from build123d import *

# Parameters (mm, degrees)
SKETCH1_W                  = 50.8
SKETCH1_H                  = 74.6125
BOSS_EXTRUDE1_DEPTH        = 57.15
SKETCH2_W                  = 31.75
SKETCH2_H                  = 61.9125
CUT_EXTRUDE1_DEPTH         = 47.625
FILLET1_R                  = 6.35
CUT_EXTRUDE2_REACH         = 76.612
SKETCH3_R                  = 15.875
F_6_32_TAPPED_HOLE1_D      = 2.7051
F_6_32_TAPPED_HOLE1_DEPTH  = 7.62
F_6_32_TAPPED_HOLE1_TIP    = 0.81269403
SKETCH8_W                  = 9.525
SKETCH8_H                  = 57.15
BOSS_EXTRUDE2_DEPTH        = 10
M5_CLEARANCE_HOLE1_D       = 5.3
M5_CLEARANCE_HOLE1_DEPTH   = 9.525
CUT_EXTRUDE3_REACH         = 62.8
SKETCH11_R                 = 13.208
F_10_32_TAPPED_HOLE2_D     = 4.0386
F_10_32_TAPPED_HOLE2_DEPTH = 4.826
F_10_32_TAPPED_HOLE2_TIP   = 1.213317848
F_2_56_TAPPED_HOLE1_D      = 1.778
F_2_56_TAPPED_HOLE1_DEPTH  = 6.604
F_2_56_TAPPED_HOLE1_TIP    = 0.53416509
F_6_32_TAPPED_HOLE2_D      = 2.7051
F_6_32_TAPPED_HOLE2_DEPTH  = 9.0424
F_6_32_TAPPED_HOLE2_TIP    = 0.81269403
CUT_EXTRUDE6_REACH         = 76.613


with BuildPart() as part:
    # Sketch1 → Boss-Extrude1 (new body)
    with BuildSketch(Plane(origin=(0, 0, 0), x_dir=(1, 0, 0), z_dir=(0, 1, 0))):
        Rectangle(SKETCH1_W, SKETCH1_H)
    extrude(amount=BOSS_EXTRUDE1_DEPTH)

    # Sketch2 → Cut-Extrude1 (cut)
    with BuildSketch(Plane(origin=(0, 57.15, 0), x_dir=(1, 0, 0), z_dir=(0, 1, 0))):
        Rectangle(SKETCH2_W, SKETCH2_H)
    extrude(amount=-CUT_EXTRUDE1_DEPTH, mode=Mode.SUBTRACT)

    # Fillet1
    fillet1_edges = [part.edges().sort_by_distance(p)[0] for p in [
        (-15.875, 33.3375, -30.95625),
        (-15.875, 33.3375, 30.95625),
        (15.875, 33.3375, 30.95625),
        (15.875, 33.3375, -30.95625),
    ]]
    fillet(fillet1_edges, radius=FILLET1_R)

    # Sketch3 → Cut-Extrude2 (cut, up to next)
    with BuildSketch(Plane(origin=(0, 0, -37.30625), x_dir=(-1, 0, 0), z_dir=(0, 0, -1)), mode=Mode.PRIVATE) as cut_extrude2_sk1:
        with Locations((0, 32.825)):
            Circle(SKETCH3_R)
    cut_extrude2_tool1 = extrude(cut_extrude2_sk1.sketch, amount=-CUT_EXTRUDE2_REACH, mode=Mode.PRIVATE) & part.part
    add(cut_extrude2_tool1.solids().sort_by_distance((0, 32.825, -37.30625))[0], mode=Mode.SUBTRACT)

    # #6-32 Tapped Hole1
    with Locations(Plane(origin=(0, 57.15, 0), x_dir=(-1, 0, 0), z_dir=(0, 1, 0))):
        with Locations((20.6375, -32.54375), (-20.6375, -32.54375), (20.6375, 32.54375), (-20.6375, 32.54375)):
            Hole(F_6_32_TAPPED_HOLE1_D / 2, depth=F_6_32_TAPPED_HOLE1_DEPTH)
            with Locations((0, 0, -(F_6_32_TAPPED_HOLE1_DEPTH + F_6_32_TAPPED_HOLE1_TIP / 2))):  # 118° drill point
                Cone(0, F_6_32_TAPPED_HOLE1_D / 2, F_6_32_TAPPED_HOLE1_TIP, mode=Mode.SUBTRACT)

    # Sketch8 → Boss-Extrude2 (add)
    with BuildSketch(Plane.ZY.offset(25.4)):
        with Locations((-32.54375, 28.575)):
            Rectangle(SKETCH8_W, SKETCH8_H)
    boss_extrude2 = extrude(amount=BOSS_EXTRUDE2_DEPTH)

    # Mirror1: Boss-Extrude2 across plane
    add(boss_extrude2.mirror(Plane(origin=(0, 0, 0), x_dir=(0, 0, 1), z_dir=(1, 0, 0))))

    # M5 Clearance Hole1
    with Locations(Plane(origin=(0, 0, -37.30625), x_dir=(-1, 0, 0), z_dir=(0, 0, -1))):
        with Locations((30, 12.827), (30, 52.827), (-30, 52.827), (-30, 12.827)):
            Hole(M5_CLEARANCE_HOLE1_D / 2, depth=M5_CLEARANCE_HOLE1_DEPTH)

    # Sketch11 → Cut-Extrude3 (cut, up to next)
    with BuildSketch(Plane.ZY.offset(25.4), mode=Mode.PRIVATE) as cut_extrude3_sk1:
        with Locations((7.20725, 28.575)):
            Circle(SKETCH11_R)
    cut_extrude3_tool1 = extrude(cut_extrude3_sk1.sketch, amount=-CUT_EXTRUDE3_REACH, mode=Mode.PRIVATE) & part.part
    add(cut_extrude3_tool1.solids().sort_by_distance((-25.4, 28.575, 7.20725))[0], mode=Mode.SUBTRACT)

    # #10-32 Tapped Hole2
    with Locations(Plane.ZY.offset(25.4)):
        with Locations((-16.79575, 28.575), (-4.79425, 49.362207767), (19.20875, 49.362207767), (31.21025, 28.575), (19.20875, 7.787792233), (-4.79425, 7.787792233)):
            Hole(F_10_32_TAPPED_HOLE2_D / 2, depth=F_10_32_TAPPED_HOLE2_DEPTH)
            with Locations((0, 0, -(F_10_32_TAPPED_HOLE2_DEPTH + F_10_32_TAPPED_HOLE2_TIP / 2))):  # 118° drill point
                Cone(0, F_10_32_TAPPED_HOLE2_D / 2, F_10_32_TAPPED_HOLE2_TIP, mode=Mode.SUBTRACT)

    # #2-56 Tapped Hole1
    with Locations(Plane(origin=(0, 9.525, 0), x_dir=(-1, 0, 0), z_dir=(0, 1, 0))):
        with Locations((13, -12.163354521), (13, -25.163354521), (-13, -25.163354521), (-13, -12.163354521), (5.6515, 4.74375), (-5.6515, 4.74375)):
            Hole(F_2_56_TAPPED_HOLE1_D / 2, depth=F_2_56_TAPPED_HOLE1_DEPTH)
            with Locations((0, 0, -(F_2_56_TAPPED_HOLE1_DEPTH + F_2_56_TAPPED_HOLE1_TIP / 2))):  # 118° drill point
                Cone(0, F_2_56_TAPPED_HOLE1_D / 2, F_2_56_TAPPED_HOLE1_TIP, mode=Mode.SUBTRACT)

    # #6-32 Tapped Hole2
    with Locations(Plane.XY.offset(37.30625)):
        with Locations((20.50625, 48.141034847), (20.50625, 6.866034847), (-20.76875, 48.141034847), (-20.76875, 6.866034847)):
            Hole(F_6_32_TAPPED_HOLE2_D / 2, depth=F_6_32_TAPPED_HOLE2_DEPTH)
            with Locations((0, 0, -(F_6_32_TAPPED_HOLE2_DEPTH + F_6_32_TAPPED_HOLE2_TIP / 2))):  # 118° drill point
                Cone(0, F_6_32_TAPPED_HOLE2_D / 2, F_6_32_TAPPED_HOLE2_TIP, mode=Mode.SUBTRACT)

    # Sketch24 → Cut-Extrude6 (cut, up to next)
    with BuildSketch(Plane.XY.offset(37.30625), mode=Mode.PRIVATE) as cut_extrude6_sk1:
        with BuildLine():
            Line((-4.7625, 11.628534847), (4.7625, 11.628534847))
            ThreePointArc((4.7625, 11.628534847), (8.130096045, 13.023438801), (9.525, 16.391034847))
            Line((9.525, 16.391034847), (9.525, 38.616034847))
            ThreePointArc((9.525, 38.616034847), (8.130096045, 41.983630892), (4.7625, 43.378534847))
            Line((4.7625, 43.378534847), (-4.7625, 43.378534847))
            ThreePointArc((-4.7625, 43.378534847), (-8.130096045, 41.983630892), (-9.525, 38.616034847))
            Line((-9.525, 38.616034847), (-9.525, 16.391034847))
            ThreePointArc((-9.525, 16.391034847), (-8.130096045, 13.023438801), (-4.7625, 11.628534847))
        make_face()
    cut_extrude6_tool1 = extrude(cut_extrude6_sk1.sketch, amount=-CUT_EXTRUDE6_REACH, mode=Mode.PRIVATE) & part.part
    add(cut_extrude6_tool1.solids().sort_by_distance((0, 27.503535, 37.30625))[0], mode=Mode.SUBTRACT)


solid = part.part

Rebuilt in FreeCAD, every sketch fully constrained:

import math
import FreeCAD as App
import Part
import Sketcher
Q = App.Units.Quantity


def edges_at(feature, points):
    """Names of the edges that pass closest to the given points."""
    edges = feature.Shape.Edges
    near = lambda p: min(range(len(edges)), key=lambda i: edges[i].distToShape(Part.Vertex(*p))[0])
    return sorted({f"Edge{near(p) + 1}" for p in points})


def add_polygon(sketch, points):
    """Adds a closed chain of lines whose ends are joined by coincident constraints."""
    first, n = sketch.GeometryCount, len(points)
    for a, b in zip(points, points[1:] + points[:1]):
        sketch.addGeometry(Part.LineSegment(App.Vector(*a, 0), App.Vector(*b, 0)), False)
    for i in range(n):
        sketch.addConstraint(Sketcher.Constraint("Coincident", first + i, 2, first + (i + 1) % n, 1))

doc = App.newDocument("Part")
body = doc.addObject("PartDesign::Body", "Body")

sketch1 = doc.addObject("Sketcher::SketchObject", "Sketch")
body.addObject(sketch1)
sketch1.AttachmentSupport = (doc.XZ_Plane, [""])
sketch1.MapMode = "FlatFace"
add_polygon(sketch1, [(-25.4, -37.30625), (-25.4, 37.30625), (25.4, 37.30625), (25.4, -37.30625)])
sketch1.addConstraint([
    Sketcher.Constraint("Vertical", 0),
    Sketcher.Constraint("Horizontal", 1),
    Sketcher.Constraint("Vertical", 2),
    Sketcher.Constraint("Horizontal", 3),
    Sketcher.Constraint("Symmetric", 0, 2, 2, 2, -1, 1),
    Sketcher.Constraint("DistanceX", 1, 1, 1, 2, Q("2 in")),
    Sketcher.Constraint("DistanceY", 0, 1, 0, 2, Q("2.9375 in")),
])
pad1 = doc.addObject("PartDesign::Pad", "Pad")
body.addObject(pad1)
pad1.Profile = sketch1
pad1.Length = Q("2.25 in")
pad1.Reversed = True

sketch2 = doc.addObject("Sketcher::SketchObject", "Sketch001")
body.addObject(sketch2)
sketch2.AttachmentSupport = (doc.XZ_Plane, [""])
sketch2.MapMode = "FlatFace"
sketch2.AttachmentOffset = App.Placement(App.Vector(0, 0, -2.25 * 25.4), App.Rotation())
add_polygon(sketch2, [(-15.875, -30.95625), (-15.875, 30.95625), (15.875, 30.95625), (15.875, -30.95625)])
sketch2.addConstraint([
    Sketcher.Constraint("Vertical", 0),
    Sketcher.Constraint("Horizontal", 1),
    Sketcher.Constraint("Vertical", 2),
    Sketcher.Constraint("Horizontal", 3),
    Sketcher.Constraint("Symmetric", 0, 2, 2, 2, -1, 1),
    Sketcher.Constraint("DistanceX", 1, 1, 1, 2, Q("1.25 in")),
    Sketcher.Constraint("DistanceY", 0, 1, 0, 2, Q("2.4375 in")),
])
pocket1 = doc.addObject("PartDesign::Pocket", "Pocket")
body.addObject(pocket1)
pocket1.Profile = sketch2
pocket1.Length = Q("1.875 in")
pocket1.Reversed = True
doc.recompute()

fillet = doc.addObject("PartDesign::Fillet", "Fillet")
body.addObject(fillet)
fillet.Base = (pocket1, edges_at(pocket1, [
    (-15.875, 33.337, -30.956),
    (-15.875, 33.337, 30.956),
    (15.875, 33.337, 30.956),
    (15.875, 33.337, -30.956),
]))
fillet.Radius = Q("0.25 in")

sketch3 = doc.addObject("Sketcher::SketchObject", "Sketch002")
body.addObject(sketch3)
sketch3.AttachmentSupport = (doc.XY_Plane, [""])
sketch3.MapMode = "FlatFace"
sketch3.AttachmentOffset = App.Placement(App.Vector(0, 0, -1.46875 * 25.4), App.Rotation())
sketch3.addGeometry(Part.Circle(App.Vector(0, 32.825, 0), App.Vector(0, 0, 1), 15.875), False)
sketch3.addConstraint([
    Sketcher.Constraint("PointOnObject", 0, 3, -2),
    Sketcher.Constraint("Diameter", 0, Q("1.25 in")),
    Sketcher.Constraint("DistanceY", -1, 1, 0, 3, Q("32.825 mm")),
])
pocket2 = doc.addObject("PartDesign::Pocket", "Pocket001")
body.addObject(pocket2)
pocket2.Profile = sketch3
pocket2.Length = Q("0.5 in")
pocket2.Reversed = True

sketch4 = doc.addObject("Sketcher::SketchObject", "Sketch003")
body.addObject(sketch4)
sketch4.AttachmentSupport = (doc.XZ_Plane, [""])
sketch4.MapMode = "FlatFace"
sketch4.AttachmentOffset = App.Placement(App.Vector(0, 0, -2.25 * 25.4), App.Rotation())
sketch4.addGeometry([
    Part.Circle(App.Vector(-20.6375, -32.54375, 0), App.Vector(0, 0, 1), 1.35255),
    Part.Circle(App.Vector(20.6375, -32.54375, 0), App.Vector(0, 0, 1), 1.35255),
    Part.Circle(App.Vector(-20.6375, 32.54375, 0), App.Vector(0, 0, 1), 1.35255),
    Part.Circle(App.Vector(20.6375, 32.54375, 0), App.Vector(0, 0, 1), 1.35255),
], False)
sketch4.addConstraint([
    Sketcher.Constraint("Equal", 0, 1),
    Sketcher.Constraint("Equal", 1, 2),
    Sketcher.Constraint("Equal", 2, 3),
    Sketcher.Constraint("Symmetric", 1, 3, 2, 3, -1, 1),
    Sketcher.Constraint("Symmetric", 0, 3, 3, 3, -1, 1),
    Sketcher.Constraint("Symmetric", 0, 3, 1, 3, -2),
    Sketcher.Constraint("Diameter", 0, Q("0.1065 in")),
    Sketcher.Constraint("DistanceX", 0, 3, -1, 1, Q("0.8125 in")),
    Sketcher.Constraint("DistanceY", 0, 3, -1, 1, Q("1.28125 in")),
])
doc.recompute()
hole = doc.addObject("PartDesign::Hole", "Hole")
body.addObject(hole)
hole.Profile = sketch4
hole.ThreadType = "None"
hole.Diameter = Q("0.1065 in")
hole.DepthType = "Dimension"
hole.Depth = Q("0.3 in")
hole.DrillPoint = "Angled"
hole.DrillPointAngle = 118
hole.Reversed = True

sketch5 = doc.addObject("Sketcher::SketchObject", "Sketch004")
body.addObject(sketch5)
sketch5.AttachmentSupport = (doc.YZ_Plane, [""])
sketch5.MapMode = "FlatFace"
sketch5.AttachmentOffset = App.Placement(App.Vector(0, 0, -1 * 25.4), App.Rotation())
add_polygon(sketch5, [(57.15, -37.30625), (0, -37.30625), (0, -27.78125), (57.15, -27.78125)])
sketch5.addConstraint([
    Sketcher.Constraint("Horizontal", 0),
    Sketcher.Constraint("Vertical", 1),
    Sketcher.Constraint("Horizontal", 2),
    Sketcher.Constraint("Vertical", 3),
    Sketcher.Constraint("PointOnObject", 0, 2, -2),
    Sketcher.Constraint("DistanceX", 0, 2, 0, 1, Q("2.25 in")),
    Sketcher.Constraint("DistanceY", 1, 1, 1, 2, Q("0.375 in")),
    Sketcher.Constraint("DistanceY", 0, 2, -1, 1, Q("1.46875 in")),
])
pad2 = doc.addObject("PartDesign::Pad", "Pad001")
body.addObject(pad2)
pad2.Profile = sketch5
pad2.Length = 10
pad2.Reversed = True
doc.recompute()

mirrored = doc.addObject("PartDesign::Mirrored", "Mirrored")
body.addObject(mirrored)
mirrored.Originals = [pad2]
mirrored.MirrorPlane = (doc.YZ_Plane, [""])
body.Tip = mirrored

sketch6 = doc.addObject("Sketcher::SketchObject", "Sketch005")
body.addObject(sketch6)
sketch6.AttachmentSupport = (doc.XY_Plane, [""])
sketch6.MapMode = "FlatFace"
sketch6.AttachmentOffset = App.Placement(App.Vector(0, 0, -1.46875 * 25.4), App.Rotation())
sketch6.addGeometry([
    Part.Circle(App.Vector(-30, 12.827, 0), App.Vector(0, 0, 1), 2.65),
    Part.Circle(App.Vector(-30, 52.827, 0), App.Vector(0, 0, 1), 2.65),
    Part.Circle(App.Vector(30, 52.827, 0), App.Vector(0, 0, 1), 2.65),
    Part.Circle(App.Vector(30, 12.827, 0), App.Vector(0, 0, 1), 2.65),
], False)
sketch6.addConstraint([
    Sketcher.Constraint("Equal", 0, 1),
    Sketcher.Constraint("Equal", 1, 2),
    Sketcher.Constraint("Equal", 2, 3),
    Sketcher.Constraint("Symmetric", 1, 3, 2, 3, -2),
    Sketcher.Constraint("Symmetric", 0, 3, 3, 3, -2),
    Sketcher.Constraint("Vertical", 0, 3, 1, 3),
    Sketcher.Constraint("Diameter", 0, Q("5.3 mm")),
    Sketcher.Constraint("DistanceY", -1, 1, 0, 3, Q("0.505 in")),
    Sketcher.Constraint("DistanceX", 0, 3, -1, 1, Q("30 mm")),
    Sketcher.Constraint("DistanceY", -1, 1, 1, 3, Q("52.827 mm")),
])
doc.recompute()
hole2 = doc.addObject("PartDesign::Hole", "Hole001")
body.addObject(hole2)
hole2.Profile = sketch6
hole2.ThreadType = "None"
hole2.Diameter = 5.3
hole2.DepthType = "Dimension"
hole2.Depth = Q("0.375 in")
hole2.DrillPoint = "Flat"
hole2.Reversed = True

sketch7 = doc.addObject("Sketcher::SketchObject", "Sketch006")
body.addObject(sketch7)
sketch7.AttachmentSupport = (doc.YZ_Plane, [""])
sketch7.MapMode = "FlatFace"
sketch7.AttachmentOffset = App.Placement(App.Vector(0, 0, -1 * 25.4), App.Rotation())
sketch7.addGeometry(Part.Circle(App.Vector(28.575, 7.20725, 0), App.Vector(0, 0, 1), 13.208), False)
sketch7.addConstraint([
    Sketcher.Constraint("Diameter", 0, Q("1.04 in")),
    Sketcher.Constraint("DistanceX", -1, 1, 0, 3, Q("1.125 in")),
    Sketcher.Constraint("DistanceY", -1, 1, 0, 3, Q("7.20725 mm")),
])
pocket3 = doc.addObject("PartDesign::Pocket", "Pocket002")
body.addObject(pocket3)
pocket3.Profile = sketch7
pocket3.Type = "UpToFirst"
pocket3.Reversed = True

sketch8 = doc.addObject("Sketcher::SketchObject", "Sketch007")
body.addObject(sketch8)
sketch8.AttachmentSupport = (doc.YZ_Plane, [""])
sketch8.MapMode = "FlatFace"
sketch8.AttachmentOffset = App.Placement(App.Vector(0, 0, -1 * 25.4), App.Rotation())
sketch8.addGeometry([
    Part.Circle(App.Vector(28.575, -16.79575, 0), App.Vector(0, 0, 1), 2.0193),
    Part.Circle(App.Vector(49.362208, -4.79425, 0), App.Vector(0, 0, 1), 2.0193),
    Part.Circle(App.Vector(49.362208, 19.20875, 0), App.Vector(0, 0, 1), 2.0193),
    Part.Circle(App.Vector(28.575, 31.21025, 0), App.Vector(0, 0, 1), 2.0193),
    Part.Circle(App.Vector(7.787792, 19.20875, 0), App.Vector(0, 0, 1), 2.0193),
    Part.Circle(App.Vector(7.787792, -4.79425, 0), App.Vector(0, 0, 1), 2.0193),
], False)
sketch8.addConstraint([
    Sketcher.Constraint("Equal", 0, 1),
    Sketcher.Constraint("Equal", 1, 2),
    Sketcher.Constraint("Equal", 2, 3),
    Sketcher.Constraint("Equal", 3, 4),
    Sketcher.Constraint("Equal", 4, 5),
    Sketcher.Constraint("Horizontal", 2, 3, 4, 3),
    Sketcher.Constraint("Horizontal", 1, 3, 5, 3),
    Sketcher.Constraint("Vertical", 1, 3, 2, 3),
    Sketcher.Constraint("Vertical", 0, 3, 3, 3),
    Sketcher.Constraint("Vertical", 4, 3, 5, 3),
    Sketcher.Constraint("Diameter", 0, Q("0.159 in")),
    Sketcher.Constraint("DistanceY", 0, 3, 3, 3, Q("1.89 in")),
    Sketcher.Constraint("DistanceX", -1, 1, 0, 3, Q("1.125 in")),
    Sketcher.Constraint("DistanceY", 1, 3, 2, 3, Q("0.945 in")),
    Sketcher.Constraint("DistanceY", 0, 3, 1, 3, Q("0.4725 in")),
    Sketcher.Constraint("DistanceY", 0, 3, -1, 1, Q("16.79575 mm")),
    Sketcher.Constraint("DistanceX", -1, 1, 1, 3, Q("49.362208 mm")),
    Sketcher.Constraint("DistanceX", -1, 1, 4, 3, Q("7.787792 mm")),
])
doc.recompute()
hole3 = doc.addObject("PartDesign::Hole", "Hole002")
body.addObject(hole3)
hole3.Profile = sketch8
hole3.ThreadType = "None"
hole3.Diameter = Q("0.159 in")
hole3.DepthType = "Dimension"
hole3.Depth = Q("0.19 in")
hole3.DrillPoint = "Angled"
hole3.DrillPointAngle = 118
hole3.Reversed = True

sketch9 = doc.addObject("Sketcher::SketchObject", "Sketch008")
body.addObject(sketch9)
sketch9.AttachmentSupport = (doc.XZ_Plane, [""])
sketch9.MapMode = "FlatFace"
sketch9.AttachmentOffset = App.Placement(App.Vector(0, 0, -0.375 * 25.4), App.Rotation())
sketch9.addGeometry([
    Part.Circle(App.Vector(-13, -12.163355, 0), App.Vector(0, 0, 1), 0.889),
    Part.Circle(App.Vector(-13, -25.163355, 0), App.Vector(0, 0, 1), 0.889),
    Part.Circle(App.Vector(13, -25.163355, 0), App.Vector(0, 0, 1), 0.889),
    Part.Circle(App.Vector(13, -12.163355, 0), App.Vector(0, 0, 1), 0.889),
    Part.Circle(App.Vector(-5.6515, 4.74375, 0), App.Vector(0, 0, 1), 0.889),
    Part.Circle(App.Vector(5.6515, 4.74375, 0), App.Vector(0, 0, 1), 0.889),
], False)
sketch9.addConstraint([
    Sketcher.Constraint("Equal", 0, 1),
    Sketcher.Constraint("Equal", 1, 2),
    Sketcher.Constraint("Equal", 2, 3),
    Sketcher.Constraint("Equal", 3, 4),
    Sketcher.Constraint("Equal", 4, 5),
    Sketcher.Constraint("Symmetric", 1, 3, 2, 3, -2),
    Sketcher.Constraint("Symmetric", 0, 3, 3, 3, -2),
    Sketcher.Constraint("Symmetric", 4, 3, 5, 3, -2),
    Sketcher.Constraint("Vertical", 0, 3, 1, 3),
    Sketcher.Constraint("Diameter", 0, Q("0.07 in")),
    Sketcher.Constraint("DistanceX", 4, 3, 5, 3, Q("0.445 in")),
    Sketcher.Constraint("DistanceX", 0, 3, -1, 1, Q("13 mm")),
    Sketcher.Constraint("DistanceY", 1, 3, 0, 3, Q("13 mm")),
    Sketcher.Constraint("DistanceY", -1, 1, 4, 3, Q("4.74375 mm")),
    Sketcher.Constraint("DistanceY", 0, 3, -1, 1, Q("12.163355 mm")),
])
doc.recompute()
hole4 = doc.addObject("PartDesign::Hole", "Hole003")
body.addObject(hole4)
hole4.Profile = sketch9
hole4.ThreadType = "None"
hole4.Diameter = Q("0.07 in")
hole4.DepthType = "Dimension"
hole4.Depth = Q("0.26 in")
hole4.DrillPoint = "Angled"
hole4.DrillPointAngle = 118
hole4.Reversed = True

sketch10 = doc.addObject("Sketcher::SketchObject", "Sketch009")
body.addObject(sketch10)
sketch10.AttachmentSupport = (doc.XY_Plane, [""])
sketch10.MapMode = "FlatFace"
sketch10.AttachmentOffset = App.Placement(App.Vector(0, 0, 1.46875 * 25.4), App.Rotation())
sketch10.addGeometry([
    Part.Circle(App.Vector(20.50625, 48.141035, 0), App.Vector(0, 0, 1), 1.35255),
    Part.Circle(App.Vector(20.50625, 6.866035, 0), App.Vector(0, 0, 1), 1.35255),
    Part.Circle(App.Vector(-20.76875, 48.141035, 0), App.Vector(0, 0, 1), 1.35255),
    Part.Circle(App.Vector(-20.76875, 6.866035, 0), App.Vector(0, 0, 1), 1.35255),
], False)
sketch10.addConstraint([
    Sketcher.Constraint("Equal", 0, 1),
    Sketcher.Constraint("Equal", 1, 2),
    Sketcher.Constraint("Equal", 2, 3),
    Sketcher.Constraint("Horizontal", 0, 3, 2, 3),
    Sketcher.Constraint("Horizontal", 1, 3, 3, 3),
    Sketcher.Constraint("Vertical", 0, 3, 1, 3),
    Sketcher.Constraint("Vertical", 2, 3, 3, 3),
    Sketcher.Constraint("Diameter", 0, Q("0.1065 in")),
    Sketcher.Constraint("DistanceY", 1, 3, 0, 3, Q("1.625 in")),
    Sketcher.Constraint("DistanceX", 2, 3, 0, 3, Q("1.625 in")),
    Sketcher.Constraint("DistanceX", -1, 1, 0, 3, Q("20.50625 mm")),
    Sketcher.Constraint("DistanceY", -1, 1, 0, 3, Q("48.141035 mm")),
])
doc.recompute()
hole5 = doc.addObject("PartDesign::Hole", "Hole004")
body.addObject(hole5)
hole5.Profile = sketch10
hole5.ThreadType = "None"
hole5.Diameter = Q("0.1065 in")
hole5.DepthType = "Dimension"
hole5.Depth = Q("0.356 in")
hole5.DrillPoint = "Angled"
hole5.DrillPointAngle = 118

sketch11 = doc.addObject("Sketcher::SketchObject", "Sketch010")
body.addObject(sketch11)
sketch11.AttachmentSupport = (doc.XY_Plane, [""])
sketch11.MapMode = "FlatFace"
sketch11.AttachmentOffset = App.Placement(App.Vector(0, 0, 1.46875 * 25.4), App.Rotation())
sketch11.addGeometry([
    Part.LineSegment(App.Vector(-4.7625, 11.628535, 0), App.Vector(4.7625, 11.628535, 0)),
    Part.ArcOfCircle(Part.Circle(App.Vector(4.7625, 16.391035, 0), App.Vector(0, 0, 1), 4.7625), math.radians(-90), math.radians(0)),
    Part.LineSegment(App.Vector(9.525, 16.391035, 0), App.Vector(9.525, 38.616035, 0)),
    Part.ArcOfCircle(Part.Circle(App.Vector(4.7625, 38.616035, 0), App.Vector(0, 0, 1), 4.7625), math.radians(0), math.radians(90)),
    Part.LineSegment(App.Vector(4.7625, 43.378535, 0), App.Vector(-4.7625, 43.378535, 0)),
    Part.ArcOfCircle(Part.Circle(App.Vector(-4.7625, 38.616035, 0), App.Vector(0, 0, 1), 4.7625), math.radians(90), math.radians(180)),
    Part.LineSegment(App.Vector(-9.525, 38.616035, 0), App.Vector(-9.525, 16.391035, 0)),
    Part.ArcOfCircle(Part.Circle(App.Vector(-4.7625, 16.391035, 0), App.Vector(0, 0, 1), 4.7625), math.radians(180), math.radians(270)),
], False)
sketch11.addConstraint([
    Sketcher.Constraint("Tangent", 0, 2, 1, 1),
    Sketcher.Constraint("Tangent", 1, 2, 2, 1),
    Sketcher.Constraint("Tangent", 2, 2, 3, 1),
    Sketcher.Constraint("Tangent", 3, 2, 4, 1),
    Sketcher.Constraint("Tangent", 4, 2, 5, 1),
    Sketcher.Constraint("Tangent", 5, 2, 6, 1),
    Sketcher.Constraint("Tangent", 6, 2, 7, 1),
    Sketcher.Constraint("Tangent", 7, 2, 0, 1),
    Sketcher.Constraint("Horizontal", 0),
    Sketcher.Constraint("Vertical", 2),
    Sketcher.Constraint("Horizontal", 4),
    Sketcher.Constraint("Vertical", 6),
    Sketcher.Constraint("Equal", 1, 3),
    Sketcher.Constraint("Equal", 3, 5),
    Sketcher.Constraint("Equal", 5, 7),
    Sketcher.Constraint("Radius", 1, Q("0.1875 in")),
    Sketcher.Constraint("DistanceX", 0, 1, 0, 2, Q("0.375 in")),
    Sketcher.Constraint("DistanceY", 2, 1, 2, 2, Q("0.875 in")),
    Sketcher.Constraint("DistanceX", -1, 1, 1, 3, Q("0.1875 in")),
    Sketcher.Constraint("DistanceY", -1, 1, 1, 3, Q("16.391035 mm")),
])
pocket4 = doc.addObject("PartDesign::Pocket", "Pocket003")
body.addObject(pocket4)
pocket4.Profile = sketch11
pocket4.Type = "UpToFirst"

doc.recompute()
